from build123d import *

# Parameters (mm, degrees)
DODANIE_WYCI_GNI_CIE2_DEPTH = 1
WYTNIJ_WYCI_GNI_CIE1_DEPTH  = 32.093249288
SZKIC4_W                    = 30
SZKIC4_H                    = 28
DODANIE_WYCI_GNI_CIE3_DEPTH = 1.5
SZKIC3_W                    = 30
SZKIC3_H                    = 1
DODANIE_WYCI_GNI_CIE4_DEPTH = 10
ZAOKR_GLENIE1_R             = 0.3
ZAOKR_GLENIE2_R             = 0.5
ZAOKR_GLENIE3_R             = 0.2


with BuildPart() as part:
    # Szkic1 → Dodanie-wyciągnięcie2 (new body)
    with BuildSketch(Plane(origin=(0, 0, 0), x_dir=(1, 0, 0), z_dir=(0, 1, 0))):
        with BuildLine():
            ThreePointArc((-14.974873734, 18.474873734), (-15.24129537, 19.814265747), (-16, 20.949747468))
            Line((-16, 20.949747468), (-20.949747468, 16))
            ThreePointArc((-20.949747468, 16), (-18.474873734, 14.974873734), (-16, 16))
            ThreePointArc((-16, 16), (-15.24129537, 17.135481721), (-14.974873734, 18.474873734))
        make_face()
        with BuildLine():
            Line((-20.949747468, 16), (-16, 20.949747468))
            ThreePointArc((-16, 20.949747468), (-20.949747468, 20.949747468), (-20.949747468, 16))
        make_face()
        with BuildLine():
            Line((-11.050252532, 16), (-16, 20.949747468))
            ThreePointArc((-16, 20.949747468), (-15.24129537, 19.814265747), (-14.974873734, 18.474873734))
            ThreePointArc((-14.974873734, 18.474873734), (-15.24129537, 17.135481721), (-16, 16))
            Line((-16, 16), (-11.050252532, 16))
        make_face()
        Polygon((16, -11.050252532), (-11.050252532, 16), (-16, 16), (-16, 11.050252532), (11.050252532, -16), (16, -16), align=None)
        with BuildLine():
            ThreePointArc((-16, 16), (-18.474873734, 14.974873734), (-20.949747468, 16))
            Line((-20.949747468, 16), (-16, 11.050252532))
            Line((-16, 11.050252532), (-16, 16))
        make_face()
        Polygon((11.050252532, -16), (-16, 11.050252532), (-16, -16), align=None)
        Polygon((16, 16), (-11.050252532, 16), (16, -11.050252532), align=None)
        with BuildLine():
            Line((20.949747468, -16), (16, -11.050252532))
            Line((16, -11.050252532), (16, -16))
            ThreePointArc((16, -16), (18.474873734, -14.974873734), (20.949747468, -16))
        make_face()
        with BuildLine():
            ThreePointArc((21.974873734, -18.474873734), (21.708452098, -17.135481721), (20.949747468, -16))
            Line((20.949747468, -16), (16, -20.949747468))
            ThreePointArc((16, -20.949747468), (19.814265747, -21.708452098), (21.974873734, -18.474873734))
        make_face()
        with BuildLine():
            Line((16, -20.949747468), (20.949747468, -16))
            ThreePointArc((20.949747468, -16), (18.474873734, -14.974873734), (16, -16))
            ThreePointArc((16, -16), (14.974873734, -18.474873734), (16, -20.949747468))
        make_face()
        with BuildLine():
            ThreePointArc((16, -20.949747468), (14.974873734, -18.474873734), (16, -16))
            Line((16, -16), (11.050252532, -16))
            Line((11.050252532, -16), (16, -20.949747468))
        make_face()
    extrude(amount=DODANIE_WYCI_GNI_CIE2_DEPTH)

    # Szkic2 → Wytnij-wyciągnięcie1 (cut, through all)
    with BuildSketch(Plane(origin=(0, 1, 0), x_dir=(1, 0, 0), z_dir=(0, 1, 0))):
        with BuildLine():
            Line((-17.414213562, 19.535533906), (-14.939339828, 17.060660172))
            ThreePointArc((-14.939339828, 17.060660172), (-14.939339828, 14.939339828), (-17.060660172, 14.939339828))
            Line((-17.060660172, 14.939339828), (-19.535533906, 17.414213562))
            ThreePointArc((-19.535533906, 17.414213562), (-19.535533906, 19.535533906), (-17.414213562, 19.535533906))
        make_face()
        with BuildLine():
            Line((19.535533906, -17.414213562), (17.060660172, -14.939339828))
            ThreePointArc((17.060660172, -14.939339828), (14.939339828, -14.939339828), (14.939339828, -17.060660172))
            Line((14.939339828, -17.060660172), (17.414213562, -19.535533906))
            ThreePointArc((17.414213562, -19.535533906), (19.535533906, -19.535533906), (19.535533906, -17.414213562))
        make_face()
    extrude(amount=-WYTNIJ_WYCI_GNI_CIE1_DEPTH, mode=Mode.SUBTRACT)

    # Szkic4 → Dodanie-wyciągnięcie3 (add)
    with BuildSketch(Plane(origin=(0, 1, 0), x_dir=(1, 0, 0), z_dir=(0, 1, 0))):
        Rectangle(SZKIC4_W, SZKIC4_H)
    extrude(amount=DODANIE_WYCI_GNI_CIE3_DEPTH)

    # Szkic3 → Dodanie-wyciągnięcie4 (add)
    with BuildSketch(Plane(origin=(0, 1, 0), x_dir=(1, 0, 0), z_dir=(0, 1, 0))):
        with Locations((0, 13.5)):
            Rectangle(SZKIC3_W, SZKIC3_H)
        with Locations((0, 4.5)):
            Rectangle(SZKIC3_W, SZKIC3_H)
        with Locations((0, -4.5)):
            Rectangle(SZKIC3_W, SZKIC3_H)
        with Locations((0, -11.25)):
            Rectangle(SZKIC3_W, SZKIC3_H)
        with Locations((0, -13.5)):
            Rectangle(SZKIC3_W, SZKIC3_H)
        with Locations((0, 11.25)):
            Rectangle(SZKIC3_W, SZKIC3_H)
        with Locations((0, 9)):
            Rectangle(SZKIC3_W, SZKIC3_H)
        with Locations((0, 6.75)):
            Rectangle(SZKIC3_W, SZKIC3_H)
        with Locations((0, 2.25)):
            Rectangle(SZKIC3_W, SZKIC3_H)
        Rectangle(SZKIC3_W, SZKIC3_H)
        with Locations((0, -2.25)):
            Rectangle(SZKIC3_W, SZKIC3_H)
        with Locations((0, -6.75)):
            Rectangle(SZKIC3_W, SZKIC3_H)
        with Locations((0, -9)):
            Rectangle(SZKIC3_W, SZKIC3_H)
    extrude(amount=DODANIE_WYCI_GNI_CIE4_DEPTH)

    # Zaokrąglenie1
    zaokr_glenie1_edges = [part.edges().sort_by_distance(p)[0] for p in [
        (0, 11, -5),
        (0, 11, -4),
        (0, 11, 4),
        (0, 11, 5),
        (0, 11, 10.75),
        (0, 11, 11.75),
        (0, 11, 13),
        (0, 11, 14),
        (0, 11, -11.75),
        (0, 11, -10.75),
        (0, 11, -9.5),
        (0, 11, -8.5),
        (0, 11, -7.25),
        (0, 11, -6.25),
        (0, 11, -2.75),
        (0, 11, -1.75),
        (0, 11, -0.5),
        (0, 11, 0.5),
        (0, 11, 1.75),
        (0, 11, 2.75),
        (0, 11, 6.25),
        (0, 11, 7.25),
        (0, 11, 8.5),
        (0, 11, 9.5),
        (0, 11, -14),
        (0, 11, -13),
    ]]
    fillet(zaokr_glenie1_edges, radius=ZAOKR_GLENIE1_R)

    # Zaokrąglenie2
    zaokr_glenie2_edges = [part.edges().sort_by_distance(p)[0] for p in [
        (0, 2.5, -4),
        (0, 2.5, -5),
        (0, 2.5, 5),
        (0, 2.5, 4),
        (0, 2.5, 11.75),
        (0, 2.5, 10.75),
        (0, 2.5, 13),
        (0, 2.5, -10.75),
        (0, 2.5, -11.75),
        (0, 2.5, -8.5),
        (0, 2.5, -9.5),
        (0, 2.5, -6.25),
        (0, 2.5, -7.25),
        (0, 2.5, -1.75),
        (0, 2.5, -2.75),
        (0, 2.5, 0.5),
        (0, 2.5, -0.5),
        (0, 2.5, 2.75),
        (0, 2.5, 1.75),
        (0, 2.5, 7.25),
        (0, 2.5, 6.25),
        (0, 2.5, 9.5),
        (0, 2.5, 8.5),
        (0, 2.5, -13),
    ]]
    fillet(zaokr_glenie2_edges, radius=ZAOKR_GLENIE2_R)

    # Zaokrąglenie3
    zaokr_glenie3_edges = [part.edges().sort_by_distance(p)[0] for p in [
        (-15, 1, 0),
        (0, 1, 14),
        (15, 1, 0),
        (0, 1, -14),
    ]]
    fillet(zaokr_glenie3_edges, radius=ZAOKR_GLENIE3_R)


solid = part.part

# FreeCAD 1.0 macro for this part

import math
import FreeCAD as App
import Part
import Sketcher
Q = App.Units.Quantity


def edges_at(feature, points):
    """Names of the edges that pass closest to the given points."""
    edges = feature.Shape.Edges
    near = lambda p: min(range(len(edges)), key=lambda i: edges[i].distToShape(Part.Vertex(*p))[0])
    return sorted({f"Edge{near(p) + 1}" for p in points})


def add_polygon(sketch, points):
    """Adds a closed chain of lines whose ends are joined by coincident constraints."""
    first, n = sketch.GeometryCount, len(points)
    for a, b in zip(points, points[1:] + points[:1]):
        sketch.addGeometry(Part.LineSegment(App.Vector(*a, 0), App.Vector(*b, 0)), False)
    for i in range(n):
        sketch.addConstraint(Sketcher.Constraint("Coincident", first + i, 2, first + (i + 1) % n, 1))

doc = App.newDocument("Part")
body = doc.addObject("PartDesign::Body", "Body")

# Sketch on XZ plane
sketch1 = doc.addObject("Sketcher::SketchObject", "Sketch")
body.addObject(sketch1)
sketch1.AttachmentSupport = (doc.XZ_Plane, [""])
sketch1.MapMode = "FlatFace"
sketch1.addGeometry(Part.LineSegment(App.Vector(11.1, 16, 0), App.Vector(16, 20.9, 0)), False)
sketch1.addGeometry(Part.ArcOfCircle(Part.Circle(App.Vector(18.5, 18.5, 0), App.Vector(0, 0, 1), 3.5), math.radians(0), math.radians(135)), False)
sketch1.addGeometry(Part.ArcOfCircle(Part.Circle(App.Vector(18.5, 18.5, 0), App.Vector(0, 0, 1), 3.5), math.radians(-45), math.radians(0)), False)
sketch1.addGeometry(Part.LineSegment(App.Vector(20.9, 16, 0), App.Vector(16, 11.1, 0)), False)
sketch1.addGeometry(Part.LineSegment(App.Vector(16, 11.1, 0), App.Vector(16, -16, 0)), False)
sketch1.addGeometry(Part.LineSegment(App.Vector(16, -16, 0), App.Vector(-11.1, -16, 0)), False)
sketch1.addGeometry(Part.LineSegment(App.Vector(-11.1, -16, 0), App.Vector(-16, -20.9, 0)), False)
sketch1.addGeometry(Part.ArcOfCircle(Part.Circle(App.Vector(-18.5, -18.5, 0), App.Vector(0, 0, 1), 3.5), math.radians(135), math.radians(315)), False)
sketch1.addGeometry(Part.LineSegment(App.Vector(-20.9, -16, 0), App.Vector(-16, -11.1, 0)), False)
sketch1.addGeometry(Part.LineSegment(App.Vector(-16, -11.1, 0), App.Vector(-16, 16, 0)), False)
sketch1.addGeometry(Part.LineSegment(App.Vector(-16, 16, 0), App.Vector(11.1, 16, 0)), False)
sketch1.addConstraint(Sketcher.Constraint("Tangent", 0, 2, 1, 2))
sketch1.addConstraint(Sketcher.Constraint("Tangent", 1, 1, 2, 2))
sketch1.addConstraint(Sketcher.Constraint("Tangent", 2, 1, 3, 1))
sketch1.addConstraint(Sketcher.Constraint("Coincident", 3, 2, 4, 1))
sketch1.addConstraint(Sketcher.Constraint("Coincident", 4, 2, 5, 1))
sketch1.addConstraint(Sketcher.Constraint("Coincident", 5, 2, 6, 1))
sketch1.addConstraint(Sketcher.Constraint("Tangent", 6, 2, 7, 2))
sketch1.addConstraint(Sketcher.Constraint("Tangent", 7, 1, 8, 1))
sketch1.addConstraint(Sketcher.Constraint("Coincident", 8, 2, 9, 1))
sketch1.addConstraint(Sketcher.Constraint("Coincident", 9, 2, 10, 1))
sketch1.addConstraint(Sketcher.Constraint("Coincident", 10, 2, 0, 1))
sketch1.addConstraint(Sketcher.Constraint("Vertical", 4))
sketch1.addConstraint(Sketcher.Constraint("Horizontal", 5))
sketch1.addConstraint(Sketcher.Constraint("Vertical", 9))
sketch1.addConstraint(Sketcher.Constraint("Horizontal", 10))
sketch1.addConstraint(Sketcher.Constraint("Equal", 1, 2))
sketch1.addConstraint(Sketcher.Constraint("Equal", 2, 7))
sketch1.addConstraint(Sketcher.Constraint("Symmetric", 1, 3, 7, 3, -1, 1))
sketch1.addConstraint(Sketcher.Constraint("Symmetric", 3, 2, 8, 2, -1, 1))
sketch1.addConstraint(Sketcher.Constraint("Symmetric", 5, 2, 10, 2, -1, 1))
sketch1.addConstraint(Sketcher.Constraint("Parallel", 0, 3))
sketch1.addConstraint(Sketcher.Constraint("Horizontal", 2, 3, 1, 1))
sketch1.addConstraint(Sketcher.Constraint("Horizontal", 5, 2, 7, 1))
sketch1.addConstraint(Sketcher.Constraint("Vertical", 0, 2, 3, 2))
sketch1.addConstraint(Sketcher.Constraint("Equal", 10, 4))
sketch1.addConstraint(Sketcher.Constraint("Equal", 0, 3))
sketch1.addConstraint(Sketcher.Constraint("Radius", 1, 3.5))
sketch1.addConstraint(Sketcher.Constraint("DistanceX", -1, 1, 0, 2, 16.0))
pad1 = doc.addObject("PartDesign::Pad", "Pad")
body.addObject(pad1)
pad1.Profile = sketch1
pad1.Length = 1
pad1.Reversed = True

# Sketch on XZ plane
sketch2 = doc.addObject("Sketcher::SketchObject", "Sketch001")
body.addObject(sketch2)
sketch2.AttachmentSupport = (doc.XZ_Plane, [""])
sketch2.MapMode = "FlatFace"
sketch2.AttachmentOffset = App.Placement(App.Vector(0, 0, -1), App.Rotation())
sketch2.addGeometry(Part.LineSegment(App.Vector(-14.9, -17.1, 0), App.Vector(-17.4, -19.5, 0)), False)
sketch2.addGeometry(Part.ArcOfCircle(Part.Circle(App.Vector(-18.5, -18.5, 0), App.Vector(0, 0, 1), 1.5), math.radians(135), math.radians(315)), False)
sketch2.addGeometry(Part.LineSegment(App.Vector(-19.5, -17.4, 0), App.Vector(-17.1, -14.9, 0)), False)
sketch2.addGeometry(Part.ArcOfCircle(Part.Circle(App.Vector(-16, -16, 0), App.Vector(0, 0, 1), 1.5), math.radians(-45), math.radians(135)), False)
sketch2.addGeometry(Part.LineSegment(App.Vector(19.5, 17.4, 0), App.Vector(17.1, 14.9, 0)), False)
sketch2.addGeometry(Part.ArcOfCircle(Part.Circle(App.Vector(16, 16, 0), App.Vector(0, 0, 1), 1.5), math.radians(135), math.radians(315)), False)
sketch2.addGeometry(Part.LineSegment(App.Vector(14.9, 17.1, 0), App.Vector(17.4, 19.5, 0)), False)
sketch2.addGeometry(Part.ArcOfCircle(Part.Circle(App.Vector(18.5, 18.5, 0), App.Vector(0, 0, 1), 1.5), math.radians(-45), math.radians(135)), False)
sketch2.addConstraint(Sketcher.Constraint("Tangent", 0, 2, 1, 2))
sketch2.addConstraint(Sketcher.Constraint("Tangent", 1, 1, 2, 1))
sketch2.addConstraint(Sketcher.Constraint("Tangent", 2, 2, 3, 2))
sketch2.addConstraint(Sketcher.Constraint("Tangent", 3, 1, 0, 1))
sketch2.addConstraint(Sketcher.Constraint("Tangent", 4, 2, 5, 2))
sketch2.addConstraint(Sketcher.Constraint("Tangent", 5, 1, 6, 1))
sketch2.addConstraint(Sketcher.Constraint("Tangent", 6, 2, 7, 2))
sketch2.addConstraint(Sketcher.Constraint("Tangent", 7, 1, 4, 1))
sketch2.addConstraint(Sketcher.Constraint("Equal", 1, 3))
sketch2.addConstraint(Sketcher.Constraint("Equal", 3, 5))
sketch2.addConstraint(Sketcher.Constraint("Equal", 5, 7))
sketch2.addConstraint(Sketcher.Constraint("Symmetric", 3, 3, 5, 3, -1, 1))
sketch2.addConstraint(Sketcher.Constraint("Symmetric", 1, 3, 7, 3, -1, 1))
sketch2.addConstraint(Sketcher.Constraint("Radius", 1, 1.5))
sketch2.addConstraint(Sketcher.Constraint("Angle", 0, Q("-135 deg")))
sketch2.addConstraint(Sketcher.Constraint("DistanceX", 3, 3, -1, 1, 16.0))
sketch2.addConstraint(Sketcher.Constraint("DistanceY", 3, 3, -1, 1, 16.0))
sketch2.addConstraint(Sketcher.Constraint("Distance", 0, 3.5))
pocket1 = doc.addObject("PartDesign::Pocket", "Pocket")
body.addObject(pocket1)
pocket1.Profile = sketch2
pocket1.Type = "ThroughAll"
pocket1.Reversed = True

# Sketch on XZ plane
sketch3 = doc.addObject("Sketcher::SketchObject", "Sketch002")
body.addObject(sketch3)
sketch3.AttachmentSupport = (doc.XZ_Plane, [""])
sketch3.MapMode = "FlatFace"
sketch3.AttachmentOffset = App.Placement(App.Vector(0, 0, -1), App.Rotation())
add_polygon(sketch3, [(-15, -14), (-15, 14), (15, 14), (15, -14)])  # lines 0-3
sketch3.addConstraint(Sketcher.Constraint("Vertical", 0))
sketch3.addConstraint(Sketcher.Constraint("Horizontal", 1))
sketch3.addConstraint(Sketcher.Constraint("Vertical", 2))
sketch3.addConstraint(Sketcher.Constraint("Horizontal", 3))
sketch3.addConstraint(Sketcher.Constraint("Symmetric", 0, 2, 2, 2, -1, 1))
sketch3.addConstraint(Sketcher.Constraint("DistanceX", 1, 1, 1, 2, 30.0))
sketch3.addConstraint(Sketcher.Constraint("DistanceY", 0, 1, 0, 2, 28.0))
pad2 = doc.addObject("PartDesign::Pad", "Pad001")
body.addObject(pad2)
pad2.Profile = sketch3
pad2.Length = 1.5
pad2.Reversed = True

# Sketch on XZ plane
sketch4 = doc.addObject("Sketcher::SketchObject", "Sketch003")
body.addObject(sketch4)
sketch4.AttachmentSupport = (doc.XZ_Plane, [""])
sketch4.MapMode = "FlatFace"
sketch4.AttachmentOffset = App.Placement(App.Vector(0, 0, -1), App.Rotation())
add_polygon(sketch4, [(-15, -14), (-15, -13), (15, -13), (15, -14)])  # lines 0-3
add_polygon(sketch4, [(-15, -5), (-15, -4), (15, -4), (15, -5)])  # lines 4-7
add_polygon(sketch4, [(-15, 4), (-15, 5), (15, 5), (15, 4)])  # lines 8-11
add_polygon(sketch4, [(-15, 10.8), (-15, 11.8), (15, 11.8), (15, 10.8)])  # lines 12-15
add_polygon(sketch4, [(-15, 13), (-15, 14), (15, 14), (15, 13)])  # lines 16-19
add_polygon(sketch4, [(-15, -11.8), (-15, -10.8), (15, -10.8), (15, -11.8)])  # lines 20-23
add_polygon(sketch4, [(-15, -9.5), (-15, -8.5), (15, -8.5), (15, -9.5)])  # lines 24-27
add_polygon(sketch4, [(-15, -7.2), (-15, -6.2), (15, -6.2), (15, -7.2)])  # lines 28-31
add_polygon(sketch4, [(-15, -2.8), (-15, -1.8), (15, -1.8), (15, -2.8)])  # lines 32-35
add_polygon(sketch4, [(-15, -0.5), (-15, 0.5), (15, 0.5), (15, -0.5)])  # lines 36-39
add_polygon(sketch4, [(-15, 1.8), (-15, 2.8), (15, 2.8), (15, 1.8)])  # lines 40-43
add_polygon(sketch4, [(-15, 6.2), (-15, 7.2), (15, 7.2), (15, 6.2)])  # lines 44-47
add_polygon(sketch4, [(-15, 8.5), (-15, 9.5), (15, 9.5), (15, 8.5)])  # lines 48-51
sketch4.addConstraint(Sketcher.Constraint("Vertical", 0))
sketch4.addConstraint(Sketcher.Constraint("Horizontal", 1))
sketch4.addConstraint(Sketcher.Constraint("Vertical", 2))
sketch4.addConstraint(Sketcher.Constraint("Horizontal", 3))
sketch4.addConstraint(Sketcher.Constraint("Vertical", 4))
sketch4.addConstraint(Sketcher.Constraint("Horizontal", 5))
sketch4.addConstraint(Sketcher.Constraint("Vertical", 6))
sketch4.addConstraint(Sketcher.Constraint("Horizontal", 7))
sketch4.addConstraint(Sketcher.Constraint("Vertical", 8))
sketch4.addConstraint(Sketcher.Constraint("Horizontal", 9))
sketch4.addConstraint(Sketcher.Constraint("Vertical", 10))
sketch4.addConstraint(Sketcher.Constraint("Horizontal", 11))
sketch4.addConstraint(Sketcher.Constraint("Vertical", 12))
sketch4.addConstraint(Sketcher.Constraint("Horizontal", 13))
sketch4.addConstraint(Sketcher.Constraint("Vertical", 14))
sketch4.addConstraint(Sketcher.Constraint("Horizontal", 15))
sketch4.addConstraint(Sketcher.Constraint("Vertical", 16))
sketch4.addConstraint(Sketcher.Constraint("Horizontal", 17))
sketch4.addConstraint(Sketcher.Constraint("Vertical", 18))
sketch4.addConstraint(Sketcher.Constraint("Horizontal", 19))
sketch4.addConstraint(Sketcher.Constraint("Vertical", 20))
sketch4.addConstraint(Sketcher.Constraint("Horizontal", 21))
sketch4.addConstraint(Sketcher.Constraint("Vertical", 22))
sketch4.addConstraint(Sketcher.Constraint("Horizontal", 23))
sketch4.addConstraint(Sketcher.Constraint("Vertical", 24))
sketch4.addConstraint(Sketcher.Constraint("Horizontal", 25))
sketch4.addConstraint(Sketcher.Constraint("Vertical", 26))
sketch4.addConstraint(Sketcher.Constraint("Horizontal", 27))
sketch4.addConstraint(Sketcher.Constraint("Vertical", 28))
sketch4.addConstraint(Sketcher.Constraint("Horizontal", 29))
sketch4.addConstraint(Sketcher.Constraint("Vertical", 30))
sketch4.addConstraint(Sketcher.Constraint("Horizontal", 31))
sketch4.addConstraint(Sketcher.Constraint("Vertical", 32))
sketch4.addConstraint(Sketcher.Constraint("Horizontal", 33))
sketch4.addConstraint(Sketcher.Constraint("Vertical", 34))
sketch4.addConstraint(Sketcher.Constraint("Horizontal", 35))
sketch4.addConstraint(Sketcher.Constraint("Vertical", 36))
sketch4.addConstraint(Sketcher.Constraint("Horizontal", 37))
sketch4.addConstraint(Sketcher.Constraint("Vertical", 38))
sketch4.addConstraint(Sketcher.Constraint("Horizontal", 39))
sketch4.addConstraint(Sketcher.Constraint("Vertical", 40))
sketch4.addConstraint(Sketcher.Constraint("Horizontal", 41))
sketch4.addConstraint(Sketcher.Constraint("Vertical", 42))
sketch4.addConstraint(Sketcher.Constraint("Horizontal", 43))
sketch4.addConstraint(Sketcher.Constraint("Vertical", 44))
sketch4.addConstraint(Sketcher.Constraint("Horizontal", 45))
sketch4.addConstraint(Sketcher.Constraint("Vertical", 46))
sketch4.addConstraint(Sketcher.Constraint("Horizontal", 47))
sketch4.addConstraint(Sketcher.Constraint("Vertical", 48))
sketch4.addConstraint(Sketcher.Constraint("Horizontal", 49))
sketch4.addConstraint(Sketcher.Constraint("Vertical", 50))
sketch4.addConstraint(Sketcher.Constraint("Horizontal", 51))
sketch4.addConstraint(Sketcher.Constraint("Symmetric", 6, 2, 8, 2, -1, 1))
sketch4.addConstraint(Sketcher.Constraint("Symmetric", 4, 2, 10, 2, -1, 1))
sketch4.addConstraint(Sketcher.Constraint("Symmetric", 2, 2, 16, 2, -1, 1))
sketch4.addConstraint(Sketcher.Constraint("Symmetric", 0, 2, 18, 2, -1, 1))
sketch4.addConstraint(Sketcher.Constraint("Symmetric", 14, 2, 20, 2, -1, 1))
sketch4.addConstraint(Sketcher.Constraint("Symmetric", 12, 2, 22, 2, -1, 1))
sketch4.addConstraint(Sketcher.Constraint("Symmetric", 36, 2, 38, 2, -1, 1))
sketch4.addConstraint(Sketcher.Constraint("Symmetric", 34, 2, 40, 2, -1, 1))
sketch4.addConstraint(Sketcher.Constraint("Symmetric", 32, 2, 42, 2, -1, 1))
sketch4.addConstraint(Sketcher.Constraint("Symmetric", 30, 2, 44, 2, -1, 1))
sketch4.addConstraint(Sketcher.Constraint("Symmetric", 28, 2, 46, 2, -1, 1))
sketch4.addConstraint(Sketcher.Constraint("Symmetric", 26, 2, 48, 2, -1, 1))
sketch4.addConstraint(Sketcher.Constraint("Symmetric", 24, 2, 50, 2, -1, 1))
sketch4.addConstraint(Sketcher.Constraint("Vertical", 3, 2, 4, 2))
sketch4.addConstraint(Sketcher.Constraint("Vertical", 2, 2, 5, 2))
sketch4.addConstraint(Sketcher.Constraint("Vertical", 7, 2, 8, 2))
sketch4.addConstraint(Sketcher.Constraint("Vertical", 11, 2, 12, 2))
sketch4.addConstraint(Sketcher.Constraint("Vertical", 10, 2, 13, 2))
sketch4.addConstraint(Sketcher.Constraint("Vertical", 23, 2, 24, 2))
sketch4.addConstraint(Sketcher.Constraint("Vertical", 22, 2, 25, 2))
sketch4.addConstraint(Sketcher.Constraint("Vertical", 27, 2, 28, 2))
sketch4.addConstraint(Sketcher.Constraint("Vertical", 26, 2, 29, 2))
sketch4.addConstraint(Sketcher.Constraint("Vertical", 31, 2, 32, 2))
sketch4.addConstraint(Sketcher.Constraint("Vertical", 30, 2, 33, 2))
sketch4.addConstraint(Sketcher.Constraint("Vertical", 35, 2, 36, 2))
sketch4.addConstraint(Sketcher.Constraint("Equal", 2, 4))
sketch4.addConstraint(Sketcher.Constraint("Equal", 10, 12))
sketch4.addConstraint(Sketcher.Constraint("Equal", 22, 24))
sketch4.addConstraint(Sketcher.Constraint("Equal", 26, 28))
sketch4.addConstraint(Sketcher.Constraint("Equal", 30, 32))
sketch4.addConstraint(Sketcher.Constraint("Equal", 34, 36))
sketch4.addConstraint(Sketcher.Constraint("DistanceX", 1, 1, 1, 2, 30.0))
sketch4.addConstraint(Sketcher.Constraint("DistanceY", 0, 1, 0, 2, 1.0))
sketch4.addConstraint(Sketcher.Constraint("DistanceY", 0, 2, -1, 1, 13.0))
sketch4.addConstraint(Sketcher.Constraint("DistanceY", 4, 2, -1, 1, 4.0))
sketch4.addConstraint(Sketcher.Constraint("DistanceY", 24, 2, -1, 1, 8.5))
sketch4.addConstraint(Sketcher.Constraint("DistanceY", 20, 2, 28, 2, 4.5))
sketch4.addConstraint(Sketcher.Constraint("DistanceY", 28, 2, 32, 2, 4.5))
sketch4.addConstraint(Sketcher.Constraint("DistanceY", 32, 2, 40, 2, 4.5))
pad3 = doc.addObject("PartDesign::Pad", "Pad002")
body.addObject(pad3)
pad3.Profile = sketch4
pad3.Length = 10
pad3.Reversed = True
doc.recompute()

fillet = doc.addObject("PartDesign::Fillet", "Fillet")
body.addObject(fillet)
fillet.Base = (pad3, edges_at(pad3, [
    (0, 11, -5),
    (0, 11, -4),
    (0, 11, 4),
    (0, 11, 5),
    (0, 11, 10.75),
    (0, 11, 11.75),
    (0, 11, 13),
    (0, 11, 14),
    (0, 11, -11.75),
    (0, 11, -10.75),
    (0, 11, -9.5),
    (0, 11, -8.5),
    (0, 11, -7.25),
    (0, 11, -6.25),
    (0, 11, -2.75),
    (0, 11, -1.75),
    (0, 11, -0.5),
    (0, 11, 0.5),
    (0, 11, 1.75),
    (0, 11, 2.75),
    (0, 11, 6.25),
    (0, 11, 7.25),
    (0, 11, 8.5),
    (0, 11, 9.5),
    (0, 11, -14),
    (0, 11, -13),
]))
fillet.Radius = 0.3
doc.recompute()

fillet2 = doc.addObject("PartDesign::Fillet", "Fillet001")
body.addObject(fillet2)
fillet2.Base = (fillet, edges_at(fillet, [
    (0, 2.5, -4),
    (0, 2.5, -5),
    (0, 2.5, 5),
    (0, 2.5, 4),
    (0, 2.5, 11.75),
    (0, 2.5, 10.75),
    (0, 2.5, 13),
    (0, 2.5, -10.75),
    (0, 2.5, -11.75),
    (0, 2.5, -8.5),
    (0, 2.5, -9.5),
    (0, 2.5, -6.25),
    (0, 2.5, -7.25),
    (0, 2.5, -1.75),
    (0, 2.5, -2.75),
    (0, 2.5, 0.5),
    (0, 2.5, -0.5),
    (0, 2.5, 2.75),
    (0, 2.5, 1.75),
    (0, 2.5, 7.25),
    (0, 2.5, 6.25),
    (0, 2.5, 9.5),
    (0, 2.5, 8.5),
    (0, 2.5, -13),
]))
fillet2.Radius = 0.5
doc.recompute()

fillet3 = doc.addObject("PartDesign::Fillet", "Fillet002")
body.addObject(fillet3)
fillet3.Base = (fillet2, edges_at(fillet2, [
    (-15, 1, 0),
    (0, 1, 14),
    (15, 1, 0),
    (0, 1, -14),
]))
fillet3.Radius = 0.2

doc.recompute()
